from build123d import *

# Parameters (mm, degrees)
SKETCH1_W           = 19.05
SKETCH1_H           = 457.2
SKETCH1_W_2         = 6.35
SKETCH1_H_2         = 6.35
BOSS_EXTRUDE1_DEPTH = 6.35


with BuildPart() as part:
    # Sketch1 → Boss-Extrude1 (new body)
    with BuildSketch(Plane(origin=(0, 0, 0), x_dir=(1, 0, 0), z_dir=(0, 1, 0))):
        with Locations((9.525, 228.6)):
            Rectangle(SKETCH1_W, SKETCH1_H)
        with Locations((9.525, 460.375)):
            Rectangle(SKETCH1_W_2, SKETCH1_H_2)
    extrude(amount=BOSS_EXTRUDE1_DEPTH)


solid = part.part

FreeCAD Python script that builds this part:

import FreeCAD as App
import Part
import Sketcher
from FreeCAD import Vector
Q = App.Units.Quantity


def add_polygon(sketch, points):
    """Adds a closed chain of lines whose ends are joined by coincident constraints."""
    first, n = sketch.GeometryCount, len(points)
    for a, b in zip(points, points[1:] + points[:1]):
        sketch.addGeometry(Part.LineSegment(App.Vector(*a, 0), App.Vector(*b, 0)), False)
    for i in range(n):
        sketch.addConstraint(Sketcher.Constraint("Coincident", first + i, 2, first + (i + 1) % n, 1))

doc = App.newDocument("Part")
body = doc.addObject("PartDesign::Body", "Body")

sketch1 = doc.addObject("Sketcher::SketchObject", "Sketch")
body.addObject(sketch1)
sketch1.AttachmentSupport = (doc.XZ_Plane, [""])
sketch1.MapMode = "FlatFace"
add_polygon(sketch1, [(0, -457), (0, 0), (19, 0), (19, -457), (13, -457), (13, -464), (6, -464), (6, -457)])
sketch1.addConstraint([
    Sketcher.Constraint("Vertical", 0),
    Sketcher.Constraint("Horizontal", 1),
    Sketcher.Constraint("Vertical", 2),
    Sketcher.Constraint("Horizontal", 3),
    Sketcher.Constraint("Vertical", 4),
    Sketcher.Constraint("Horizontal", 5),
    Sketcher.Constraint("Vertical", 6),
    Sketcher.Constraint("Horizontal", 7),
    Sketcher.Constraint("Coincident", 0, 2, -1, 1),
    Sketcher.Constraint("Horizontal", 3, 2, 6, 2),
    Sketcher.Constraint("Equal", 3, 5),
    Sketcher.Constraint("Equal", 5, 7),
    Sketcher.Constraint("Equal", 7, 4),
    Sketcher.Constraint("DistanceY", 0, 1, 0, 2, Q("18 in")),
    Sketcher.Constraint("DistanceX", 1, 1, 1, 2, Q("0.75 in")),
])
pad1 = doc.addObject("PartDesign::Pad", "Pad")
body.addObject(pad1)
pad1.Profile = sketch1
pad1.Length = Q("0.25 in")
pad1.Reversed = True

doc.recompute()
